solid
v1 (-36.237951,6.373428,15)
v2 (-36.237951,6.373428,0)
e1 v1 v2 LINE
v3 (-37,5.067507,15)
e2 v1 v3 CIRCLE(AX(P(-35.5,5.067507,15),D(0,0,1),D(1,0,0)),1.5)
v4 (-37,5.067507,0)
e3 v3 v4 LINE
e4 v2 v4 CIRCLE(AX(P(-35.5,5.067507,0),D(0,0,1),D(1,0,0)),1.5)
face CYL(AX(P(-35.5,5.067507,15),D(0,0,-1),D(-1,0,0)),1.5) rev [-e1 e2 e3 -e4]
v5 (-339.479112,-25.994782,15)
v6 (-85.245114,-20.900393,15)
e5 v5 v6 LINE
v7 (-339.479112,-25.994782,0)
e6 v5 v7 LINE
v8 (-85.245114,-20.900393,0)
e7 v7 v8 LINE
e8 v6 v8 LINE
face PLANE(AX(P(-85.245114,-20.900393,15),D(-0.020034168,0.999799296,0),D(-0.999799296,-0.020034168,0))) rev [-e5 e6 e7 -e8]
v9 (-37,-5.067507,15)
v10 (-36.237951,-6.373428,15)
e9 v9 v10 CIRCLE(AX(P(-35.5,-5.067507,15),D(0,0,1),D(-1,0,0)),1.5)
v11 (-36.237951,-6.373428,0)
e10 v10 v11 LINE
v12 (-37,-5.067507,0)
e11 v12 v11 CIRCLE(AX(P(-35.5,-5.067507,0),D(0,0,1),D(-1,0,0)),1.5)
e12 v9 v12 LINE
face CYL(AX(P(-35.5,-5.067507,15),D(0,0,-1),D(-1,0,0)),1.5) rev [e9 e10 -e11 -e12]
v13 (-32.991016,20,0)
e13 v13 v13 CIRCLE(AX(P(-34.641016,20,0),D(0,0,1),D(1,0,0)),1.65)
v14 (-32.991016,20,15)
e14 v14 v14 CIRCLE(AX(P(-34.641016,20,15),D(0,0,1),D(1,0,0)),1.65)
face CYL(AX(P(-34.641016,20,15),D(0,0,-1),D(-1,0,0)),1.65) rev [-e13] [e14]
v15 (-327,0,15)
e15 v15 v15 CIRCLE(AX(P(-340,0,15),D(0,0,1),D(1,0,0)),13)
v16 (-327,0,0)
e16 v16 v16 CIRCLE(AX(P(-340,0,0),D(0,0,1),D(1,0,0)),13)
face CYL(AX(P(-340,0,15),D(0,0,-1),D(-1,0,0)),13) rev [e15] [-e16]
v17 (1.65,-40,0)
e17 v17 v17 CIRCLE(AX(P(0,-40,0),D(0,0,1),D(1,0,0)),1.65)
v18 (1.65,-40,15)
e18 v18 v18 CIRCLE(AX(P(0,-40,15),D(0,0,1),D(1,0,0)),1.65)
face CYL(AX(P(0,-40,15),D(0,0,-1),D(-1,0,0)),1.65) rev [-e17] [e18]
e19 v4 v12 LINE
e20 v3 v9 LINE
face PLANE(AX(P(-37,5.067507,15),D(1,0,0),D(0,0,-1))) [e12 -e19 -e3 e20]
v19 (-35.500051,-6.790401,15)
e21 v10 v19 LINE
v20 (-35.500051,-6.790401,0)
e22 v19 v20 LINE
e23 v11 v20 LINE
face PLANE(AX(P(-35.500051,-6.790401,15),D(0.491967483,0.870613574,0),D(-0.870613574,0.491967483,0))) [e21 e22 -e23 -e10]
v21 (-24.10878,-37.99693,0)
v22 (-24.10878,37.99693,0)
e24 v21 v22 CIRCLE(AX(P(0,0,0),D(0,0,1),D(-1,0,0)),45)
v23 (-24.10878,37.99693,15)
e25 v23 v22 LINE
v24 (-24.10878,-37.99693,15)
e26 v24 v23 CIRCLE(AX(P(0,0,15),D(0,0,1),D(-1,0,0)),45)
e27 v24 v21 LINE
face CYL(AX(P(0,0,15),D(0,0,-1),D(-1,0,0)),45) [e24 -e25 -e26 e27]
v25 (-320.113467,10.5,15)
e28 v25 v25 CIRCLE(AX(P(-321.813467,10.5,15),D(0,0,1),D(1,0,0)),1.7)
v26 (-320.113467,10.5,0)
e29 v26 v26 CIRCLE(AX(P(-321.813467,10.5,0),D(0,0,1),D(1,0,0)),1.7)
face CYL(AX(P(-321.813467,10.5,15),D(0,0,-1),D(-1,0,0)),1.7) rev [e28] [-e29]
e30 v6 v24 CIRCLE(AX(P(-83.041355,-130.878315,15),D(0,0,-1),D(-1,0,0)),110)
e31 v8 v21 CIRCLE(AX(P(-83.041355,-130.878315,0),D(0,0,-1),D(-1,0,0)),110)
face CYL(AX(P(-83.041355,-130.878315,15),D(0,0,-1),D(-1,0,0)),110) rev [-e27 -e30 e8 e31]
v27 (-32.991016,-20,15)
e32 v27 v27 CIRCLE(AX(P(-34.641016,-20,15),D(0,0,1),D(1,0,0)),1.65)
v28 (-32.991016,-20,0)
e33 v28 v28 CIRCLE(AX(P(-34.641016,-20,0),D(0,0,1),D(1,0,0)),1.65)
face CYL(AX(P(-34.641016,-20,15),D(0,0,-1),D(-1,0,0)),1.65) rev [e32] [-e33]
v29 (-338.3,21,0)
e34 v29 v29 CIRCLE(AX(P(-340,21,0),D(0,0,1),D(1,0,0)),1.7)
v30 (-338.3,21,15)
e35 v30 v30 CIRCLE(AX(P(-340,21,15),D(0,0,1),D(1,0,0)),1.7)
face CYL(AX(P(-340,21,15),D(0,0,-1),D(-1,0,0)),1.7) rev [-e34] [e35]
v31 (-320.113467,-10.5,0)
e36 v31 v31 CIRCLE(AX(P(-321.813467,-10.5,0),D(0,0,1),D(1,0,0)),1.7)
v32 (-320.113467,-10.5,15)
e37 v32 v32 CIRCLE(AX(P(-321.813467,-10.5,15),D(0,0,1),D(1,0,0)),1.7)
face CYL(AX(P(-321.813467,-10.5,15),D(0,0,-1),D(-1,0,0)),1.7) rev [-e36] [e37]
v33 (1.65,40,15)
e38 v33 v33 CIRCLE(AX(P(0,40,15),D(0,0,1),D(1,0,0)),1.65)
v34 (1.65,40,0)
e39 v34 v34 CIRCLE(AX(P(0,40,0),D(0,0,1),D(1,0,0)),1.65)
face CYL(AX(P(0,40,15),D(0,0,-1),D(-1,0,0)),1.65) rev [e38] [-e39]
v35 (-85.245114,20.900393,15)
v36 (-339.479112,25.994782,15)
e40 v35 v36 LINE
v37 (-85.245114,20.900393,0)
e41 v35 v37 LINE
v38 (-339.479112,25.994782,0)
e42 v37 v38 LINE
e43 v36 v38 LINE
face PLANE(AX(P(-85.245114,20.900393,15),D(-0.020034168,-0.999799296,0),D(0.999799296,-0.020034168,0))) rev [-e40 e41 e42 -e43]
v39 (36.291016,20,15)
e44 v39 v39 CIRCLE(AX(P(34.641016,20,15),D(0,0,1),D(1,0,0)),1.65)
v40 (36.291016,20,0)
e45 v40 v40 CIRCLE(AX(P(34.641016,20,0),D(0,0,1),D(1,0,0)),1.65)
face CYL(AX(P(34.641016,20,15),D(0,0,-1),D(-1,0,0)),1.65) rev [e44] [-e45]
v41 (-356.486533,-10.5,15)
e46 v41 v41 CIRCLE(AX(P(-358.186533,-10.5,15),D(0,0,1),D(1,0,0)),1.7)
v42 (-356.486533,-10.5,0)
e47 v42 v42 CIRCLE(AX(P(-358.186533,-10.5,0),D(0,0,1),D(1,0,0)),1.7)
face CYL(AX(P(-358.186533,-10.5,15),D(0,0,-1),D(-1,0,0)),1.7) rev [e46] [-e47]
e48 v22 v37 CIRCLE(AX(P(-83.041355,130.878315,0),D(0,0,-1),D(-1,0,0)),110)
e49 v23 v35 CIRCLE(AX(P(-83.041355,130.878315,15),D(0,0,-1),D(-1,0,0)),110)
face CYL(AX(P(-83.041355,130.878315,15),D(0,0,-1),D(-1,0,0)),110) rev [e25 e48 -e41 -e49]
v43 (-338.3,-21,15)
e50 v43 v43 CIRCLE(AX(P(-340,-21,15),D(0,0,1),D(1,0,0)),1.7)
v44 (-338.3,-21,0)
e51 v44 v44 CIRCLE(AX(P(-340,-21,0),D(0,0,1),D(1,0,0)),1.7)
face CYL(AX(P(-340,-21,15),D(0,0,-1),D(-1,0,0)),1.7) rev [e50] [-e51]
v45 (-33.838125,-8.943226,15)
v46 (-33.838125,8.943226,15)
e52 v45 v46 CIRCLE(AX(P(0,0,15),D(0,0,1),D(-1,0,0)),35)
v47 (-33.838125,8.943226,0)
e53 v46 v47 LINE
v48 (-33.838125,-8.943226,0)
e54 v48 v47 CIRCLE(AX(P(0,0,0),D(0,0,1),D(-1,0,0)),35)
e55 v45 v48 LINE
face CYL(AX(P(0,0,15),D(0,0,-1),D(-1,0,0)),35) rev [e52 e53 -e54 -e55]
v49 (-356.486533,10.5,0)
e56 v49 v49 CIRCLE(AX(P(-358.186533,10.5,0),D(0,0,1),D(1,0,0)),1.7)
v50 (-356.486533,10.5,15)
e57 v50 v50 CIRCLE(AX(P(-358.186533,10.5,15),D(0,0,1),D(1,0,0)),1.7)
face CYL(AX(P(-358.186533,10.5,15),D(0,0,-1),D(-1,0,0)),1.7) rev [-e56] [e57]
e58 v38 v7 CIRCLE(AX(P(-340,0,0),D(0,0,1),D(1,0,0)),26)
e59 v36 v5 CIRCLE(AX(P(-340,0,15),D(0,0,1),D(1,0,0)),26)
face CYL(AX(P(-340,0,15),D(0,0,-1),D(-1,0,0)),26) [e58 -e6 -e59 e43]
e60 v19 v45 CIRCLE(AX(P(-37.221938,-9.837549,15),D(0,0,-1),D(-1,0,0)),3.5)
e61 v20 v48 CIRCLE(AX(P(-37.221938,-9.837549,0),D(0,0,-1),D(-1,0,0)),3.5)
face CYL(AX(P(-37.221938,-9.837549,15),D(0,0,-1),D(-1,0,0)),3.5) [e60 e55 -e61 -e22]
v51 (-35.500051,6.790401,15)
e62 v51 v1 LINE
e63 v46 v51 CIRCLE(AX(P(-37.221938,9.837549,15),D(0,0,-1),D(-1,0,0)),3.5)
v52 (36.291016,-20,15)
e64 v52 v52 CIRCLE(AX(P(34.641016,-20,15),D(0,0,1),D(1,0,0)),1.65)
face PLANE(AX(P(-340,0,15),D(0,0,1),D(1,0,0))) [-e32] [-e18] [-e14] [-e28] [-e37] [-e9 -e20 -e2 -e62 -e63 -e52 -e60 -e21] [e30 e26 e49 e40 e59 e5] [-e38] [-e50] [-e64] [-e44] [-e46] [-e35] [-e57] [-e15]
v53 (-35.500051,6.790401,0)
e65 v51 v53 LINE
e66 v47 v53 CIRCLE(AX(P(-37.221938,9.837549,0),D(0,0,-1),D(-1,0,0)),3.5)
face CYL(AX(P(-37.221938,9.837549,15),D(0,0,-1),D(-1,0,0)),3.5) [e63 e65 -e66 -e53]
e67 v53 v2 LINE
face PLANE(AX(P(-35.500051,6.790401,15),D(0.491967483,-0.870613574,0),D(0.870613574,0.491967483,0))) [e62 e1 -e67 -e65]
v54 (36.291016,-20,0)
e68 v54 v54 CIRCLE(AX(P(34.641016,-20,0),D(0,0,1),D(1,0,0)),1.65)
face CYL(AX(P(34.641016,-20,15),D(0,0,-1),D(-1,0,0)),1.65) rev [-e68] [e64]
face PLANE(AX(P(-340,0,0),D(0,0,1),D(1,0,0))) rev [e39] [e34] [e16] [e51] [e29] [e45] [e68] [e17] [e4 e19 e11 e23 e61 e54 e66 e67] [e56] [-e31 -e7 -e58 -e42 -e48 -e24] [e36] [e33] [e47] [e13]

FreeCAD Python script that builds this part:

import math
import FreeCAD as App
import Part
import Sketcher
from FreeCAD import Vector
Q = App.Units.Quantity

doc = App.newDocument("Part")
body = doc.addObject("PartDesign::Body", "Body")

# Sketch on XY plane
sketch1 = body.newObject("Sketcher::SketchObject", "Sketch")
sketch1.AttachmentSupport = (doc.getObject("XY_Plane"), [""])
sketch1.MapMode = "FlatFace"
sketch1.addGeometry([
    Part.LineSegment(Vector(-85.2, 20.9, 0), Vector(-339.5, 26, 0)),  # 0
    Part.ArcOfCircle(Part.Circle(Vector(-340, 0, 0), Vector(0, 0, 1), 26), math.radians(89), math.radians(271)),  # 1
    Part.LineSegment(Vector(-339.5, -26, 0), Vector(-85.2, -20.9, 0)),  # 2
    Part.ArcOfCircle(Part.Circle(Vector(-83, -130.9, 0), Vector(0, 0, 1), 110), math.radians(58), math.radians(91)),  # 3
    Part.ArcOfCircle(Part.Circle(Vector(0, 0, 0), Vector(0, 0, 1), 45), math.radians(-122), math.radians(122)),  # 4
    Part.ArcOfCircle(Part.Circle(Vector(-83, 130.9, 0), Vector(0, 0, 1), 110), math.radians(-91), math.radians(-58)),  # 5
    Part.Circle(Vector(-340, -21, 0), Vector(0, 0, 1), 1.7),  # 6
    Part.Circle(Vector(-358.2, -10.5, 0), Vector(0, 0, 1), 1.7),  # 7
    Part.Circle(Vector(-321.8, -10.5, 0), Vector(0, 0, 1), 1.7),  # 8
    Part.Circle(Vector(0, -40, 0), Vector(0, 0, 1), 1.6),  # 9
    Part.Circle(Vector(-34.6, -20, 0), Vector(0, 0, 1), 1.6),  # 10
    Part.Circle(Vector(34.6, -20, 0), Vector(0, 0, 1), 1.6),  # 11
    Part.Circle(Vector(-340, 0, 0), Vector(0, 0, 1), 13),  # 12
    Part.Circle(Vector(-358.2, 10.5, 0), Vector(0, 0, 1), 1.7),  # 13
    Part.Circle(Vector(-321.8, 10.5, 0), Vector(0, 0, 1), 1.7),  # 14
    Part.Circle(Vector(-340, 21, 0), Vector(0, 0, 1), 1.7),  # 15
    Part.LineSegment(Vector(-36.2, 6.4, 0), Vector(-35.5, 6.8, 0)),  # 16
    Part.ArcOfCircle(Part.Circle(Vector(-37.2, 9.8, 0), Vector(0, 0, 1), 3.5), math.radians(-61), math.radians(-15)),  # 17
    Part.ArcOfCircle(Part.Circle(Vector(0, 0, 0), Vector(0, 0, 1), 35), math.radians(-165), math.radians(165)),  # 18
    Part.ArcOfCircle(Part.Circle(Vector(-37.2, -9.8, 0), Vector(0, 0, 1), 3.5), math.radians(15), math.radians(61)),  # 19
    Part.LineSegment(Vector(-35.5, -6.8, 0), Vector(-36.2, -6.4, 0)),  # 20
    Part.ArcOfCircle(Part.Circle(Vector(-35.5, -5.1, 0), Vector(0, 0, 1), 1.5), math.radians(180), math.radians(241)),  # 21
    Part.LineSegment(Vector(-37, -5.1, 0), Vector(-37, 5.1, 0)),  # 22
    Part.ArcOfCircle(Part.Circle(Vector(-35.5, 5.1, 0), Vector(0, 0, 1), 1.5), math.radians(119), math.radians(180)),  # 23
    Part.Circle(Vector(-34.6, 20, 0), Vector(0, 0, 1), 1.6),  # 24
    Part.Circle(Vector(34.6, 20, 0), Vector(0, 0, 1), 1.6),  # 25
    Part.Circle(Vector(0, 40, 0), Vector(0, 0, 1), 1.6),  # 26
], False)
sketch1.addConstraint([
    Sketcher.Constraint("Tangent", 0, 2, 1, 1),
    Sketcher.Constraint("Tangent", 1, 2, 2, 1),
    Sketcher.Constraint("Tangent", 2, 2, 3, 2),
    Sketcher.Constraint("Tangent", 3, 1, 4, 1),
    Sketcher.Constraint("Tangent", 4, 2, 5, 2),
    Sketcher.Constraint("Tangent", 5, 1, 0, 1),
    Sketcher.Constraint("Tangent", 16, 2, 17, 1),
    Sketcher.Constraint("Tangent", 17, 2, 18, 2),
    Sketcher.Constraint("Tangent", 18, 1, 19, 1),
    Sketcher.Constraint("Tangent", 19, 2, 20, 1),
    Sketcher.Constraint("Tangent", 20, 2, 21, 2),
    Sketcher.Constraint("Tangent", 21, 1, 22, 1),
    Sketcher.Constraint("Tangent", 22, 2, 23, 2),
    Sketcher.Constraint("Tangent", 23, 1, 16, 1),
    Sketcher.Constraint("Vertical", 22),
    Sketcher.Constraint("Coincident", 4, 3, -1, 1),
    Sketcher.Constraint("Coincident", 18, 3, -1, 1),
    Sketcher.Constraint("Coincident", 12, 3, 1, 3),
    Sketcher.Constraint("Equal", 3, 5),
    Sketcher.Constraint("Equal", 6, 7),
    Sketcher.Constraint("Equal", 7, 8),
    Sketcher.Constraint("Equal", 9, 10),
    Sketcher.Constraint("Equal", 10, 11),
    Sketcher.Constraint("Equal", 8, 13),
    Sketcher.Constraint("Equal", 13, 14),
    Sketcher.Constraint("Equal", 14, 15),
    Sketcher.Constraint("Equal", 17, 19),
    Sketcher.Constraint("Equal", 21, 23),
    Sketcher.Constraint("Equal", 11, 24),
    Sketcher.Constraint("Equal", 24, 25),
    Sketcher.Constraint("Equal", 25, 26),
    Sketcher.Constraint("Symmetric", 11, 3, 24, 3, -1, 1),
    Sketcher.Constraint("Symmetric", 10, 3, 25, 3, -1, 1),
    Sketcher.Constraint("Symmetric", 9, 3, 26, 3, -1, 1),
    Sketcher.Constraint("Symmetric", 10, 3, 11, 3, -2),
    Sketcher.Constraint("Symmetric", 7, 3, 13, 3, -1),
    Sketcher.Constraint("Symmetric", 8, 3, 14, 3, -1),
    Sketcher.Constraint("Symmetric", 6, 3, 15, 3, -1),
    Sketcher.Constraint("Symmetric", 0, 2, 1, 2, -1),
    Sketcher.Constraint("Symmetric", 16, 2, 19, 2, -1),
    Sketcher.Constraint("PointOnObject", 9, 3, -2),
    Sketcher.Constraint("Horizontal", 7, 3, 8, 3),
    Sketcher.Constraint("Vertical", 1, 3, 6, 3),
    Sketcher.Constraint("Diameter", 12, 26.0),
    Sketcher.Constraint("Radius", 1, 26.0),
    Sketcher.Constraint("Radius", 3, 110.0),
    Sketcher.Constraint("Radius", 4, 45.0),
    Sketcher.Constraint("Radius", 18, 35.0),
    Sketcher.Constraint("Diameter", 6, 3.4),
    Sketcher.Constraint("Diameter", 9, 3.3),
    Sketcher.Constraint("Radius", 17, 3.5),
    Sketcher.Constraint("Radius", 21, 1.5),
    Sketcher.Constraint("DistanceX", 1, 3, -1, 1, 340.0),
    Sketcher.Constraint("DistanceY", 6, 3, -1, 1, 21.0),
    Sketcher.Constraint("DistanceY", 9, 3, -1, 1, 40.0),
    Sketcher.Constraint("DistanceY", 10, 3, -1, 1, 20.0),
    Sketcher.Constraint("DistanceX", 21, 1, -1, 1, 37.0),
    Sketcher.Constraint("DistanceY", 7, 3, 13, 3, 21.0),
    Sketcher.Constraint("Angle", 16, Q("29.469981 deg")),
    Sketcher.Constraint("DistanceY", -1, 1, 16, 2, 6.790401),
    Sketcher.Constraint("DistanceY", 2, 2, 23, 3, 25.9679),
    Sketcher.Constraint("DistanceX", 7, 3, 3, 3, 275.145178),
    Sketcher.Constraint("DistanceX", 8, 3, 3, 3, 238.772111),
    Sketcher.Constraint("DistanceX", 3, 3, 10, 3, 48.400339),
])
pad1 = body.newObject("PartDesign::Pad", "Pad")
pad1.Profile = sketch1
pad1.Length = 15

doc.recompute()
